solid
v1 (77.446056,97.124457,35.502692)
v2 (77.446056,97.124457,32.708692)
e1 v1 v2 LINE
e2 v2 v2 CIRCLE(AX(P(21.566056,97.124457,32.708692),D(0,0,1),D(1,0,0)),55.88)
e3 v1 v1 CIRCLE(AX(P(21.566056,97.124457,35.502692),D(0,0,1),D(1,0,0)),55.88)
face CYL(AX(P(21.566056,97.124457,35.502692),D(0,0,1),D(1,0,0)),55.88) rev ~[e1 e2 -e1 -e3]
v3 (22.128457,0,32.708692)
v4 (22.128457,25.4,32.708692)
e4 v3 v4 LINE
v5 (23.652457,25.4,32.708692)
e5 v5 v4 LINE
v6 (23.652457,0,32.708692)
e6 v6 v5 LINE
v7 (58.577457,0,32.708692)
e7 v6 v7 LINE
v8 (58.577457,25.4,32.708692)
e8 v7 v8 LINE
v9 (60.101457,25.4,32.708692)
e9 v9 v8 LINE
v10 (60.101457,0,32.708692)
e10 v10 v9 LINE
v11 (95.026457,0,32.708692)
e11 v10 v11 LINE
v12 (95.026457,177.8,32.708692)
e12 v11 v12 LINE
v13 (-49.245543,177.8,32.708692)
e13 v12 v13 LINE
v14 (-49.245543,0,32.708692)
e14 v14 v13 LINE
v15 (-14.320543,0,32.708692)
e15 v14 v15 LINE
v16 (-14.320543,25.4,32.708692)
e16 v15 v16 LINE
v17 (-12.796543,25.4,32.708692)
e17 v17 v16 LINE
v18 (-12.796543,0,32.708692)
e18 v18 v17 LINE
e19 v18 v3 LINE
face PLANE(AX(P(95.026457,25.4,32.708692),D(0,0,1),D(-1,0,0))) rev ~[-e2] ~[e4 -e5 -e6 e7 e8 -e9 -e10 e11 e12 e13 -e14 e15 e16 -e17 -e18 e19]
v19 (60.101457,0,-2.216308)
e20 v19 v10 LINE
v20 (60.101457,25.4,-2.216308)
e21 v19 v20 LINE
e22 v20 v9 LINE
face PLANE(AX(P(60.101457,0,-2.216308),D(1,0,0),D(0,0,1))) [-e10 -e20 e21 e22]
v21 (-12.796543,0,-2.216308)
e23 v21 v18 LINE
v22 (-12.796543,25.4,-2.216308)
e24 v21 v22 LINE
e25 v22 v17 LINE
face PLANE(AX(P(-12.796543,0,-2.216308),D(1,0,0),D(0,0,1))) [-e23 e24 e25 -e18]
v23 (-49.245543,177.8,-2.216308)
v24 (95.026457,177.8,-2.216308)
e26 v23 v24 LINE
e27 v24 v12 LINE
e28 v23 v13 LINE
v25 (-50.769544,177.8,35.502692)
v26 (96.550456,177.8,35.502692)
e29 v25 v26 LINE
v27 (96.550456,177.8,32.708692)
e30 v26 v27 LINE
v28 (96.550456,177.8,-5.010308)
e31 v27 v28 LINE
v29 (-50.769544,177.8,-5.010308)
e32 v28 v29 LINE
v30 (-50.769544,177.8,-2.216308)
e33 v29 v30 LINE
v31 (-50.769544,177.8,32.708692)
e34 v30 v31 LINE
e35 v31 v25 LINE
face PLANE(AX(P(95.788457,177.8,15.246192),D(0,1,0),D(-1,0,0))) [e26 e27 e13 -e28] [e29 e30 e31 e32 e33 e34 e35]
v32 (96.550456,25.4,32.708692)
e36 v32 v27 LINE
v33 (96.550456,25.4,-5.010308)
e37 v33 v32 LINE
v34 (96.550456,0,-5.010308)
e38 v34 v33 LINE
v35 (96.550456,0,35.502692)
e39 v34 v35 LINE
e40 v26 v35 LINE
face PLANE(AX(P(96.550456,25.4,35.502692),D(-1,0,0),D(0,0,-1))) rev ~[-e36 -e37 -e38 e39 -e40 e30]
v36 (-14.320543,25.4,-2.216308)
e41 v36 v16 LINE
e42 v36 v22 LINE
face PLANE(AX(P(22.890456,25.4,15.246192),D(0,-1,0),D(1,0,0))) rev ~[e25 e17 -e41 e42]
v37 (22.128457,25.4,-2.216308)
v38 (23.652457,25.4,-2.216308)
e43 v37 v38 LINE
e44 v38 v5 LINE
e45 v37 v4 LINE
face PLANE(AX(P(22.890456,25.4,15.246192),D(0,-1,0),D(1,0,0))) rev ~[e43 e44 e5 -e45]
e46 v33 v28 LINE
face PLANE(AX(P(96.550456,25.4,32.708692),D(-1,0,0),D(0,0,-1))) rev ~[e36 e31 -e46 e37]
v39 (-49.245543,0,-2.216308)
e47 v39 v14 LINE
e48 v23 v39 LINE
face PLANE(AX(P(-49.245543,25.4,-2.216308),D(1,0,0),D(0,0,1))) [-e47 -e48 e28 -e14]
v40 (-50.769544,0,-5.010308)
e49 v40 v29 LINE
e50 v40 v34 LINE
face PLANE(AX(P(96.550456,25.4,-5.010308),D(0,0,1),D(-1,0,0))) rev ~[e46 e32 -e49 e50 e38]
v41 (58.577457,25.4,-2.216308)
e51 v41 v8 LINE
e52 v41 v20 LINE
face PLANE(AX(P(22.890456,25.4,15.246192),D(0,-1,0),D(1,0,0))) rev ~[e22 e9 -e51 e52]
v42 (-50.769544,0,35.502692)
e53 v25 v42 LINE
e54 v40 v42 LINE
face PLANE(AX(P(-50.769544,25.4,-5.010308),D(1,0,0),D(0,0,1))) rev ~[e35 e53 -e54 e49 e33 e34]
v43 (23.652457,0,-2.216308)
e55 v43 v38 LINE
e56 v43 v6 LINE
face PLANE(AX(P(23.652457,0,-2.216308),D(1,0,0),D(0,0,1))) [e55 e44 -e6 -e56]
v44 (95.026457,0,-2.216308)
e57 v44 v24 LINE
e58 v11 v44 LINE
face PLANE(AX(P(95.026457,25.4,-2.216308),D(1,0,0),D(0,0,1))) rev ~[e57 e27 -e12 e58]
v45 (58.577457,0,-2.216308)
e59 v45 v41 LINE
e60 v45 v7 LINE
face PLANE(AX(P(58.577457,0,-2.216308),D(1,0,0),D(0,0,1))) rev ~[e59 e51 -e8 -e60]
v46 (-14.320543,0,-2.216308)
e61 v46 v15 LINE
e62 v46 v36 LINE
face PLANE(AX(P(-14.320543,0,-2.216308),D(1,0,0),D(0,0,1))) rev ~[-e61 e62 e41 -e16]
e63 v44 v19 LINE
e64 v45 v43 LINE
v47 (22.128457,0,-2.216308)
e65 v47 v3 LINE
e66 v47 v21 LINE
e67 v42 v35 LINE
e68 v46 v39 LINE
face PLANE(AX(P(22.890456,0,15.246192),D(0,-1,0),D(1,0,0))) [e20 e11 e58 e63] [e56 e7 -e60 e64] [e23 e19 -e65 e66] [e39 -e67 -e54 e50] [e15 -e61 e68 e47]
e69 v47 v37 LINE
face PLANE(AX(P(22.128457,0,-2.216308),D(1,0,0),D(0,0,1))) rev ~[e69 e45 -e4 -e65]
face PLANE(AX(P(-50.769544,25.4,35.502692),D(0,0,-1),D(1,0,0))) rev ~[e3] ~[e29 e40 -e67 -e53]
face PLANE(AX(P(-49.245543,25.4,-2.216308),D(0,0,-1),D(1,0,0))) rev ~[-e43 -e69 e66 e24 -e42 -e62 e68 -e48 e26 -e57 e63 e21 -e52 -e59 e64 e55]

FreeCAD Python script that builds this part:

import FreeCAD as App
import Part
import Sketcher
Q = App.Units.Quantity

doc = App.newDocument("Part")
body = doc.addObject("PartDesign::Body", "Body")

sketch1 = doc.addObject("Sketcher::SketchObject", "Sketch")
body.addObject(sketch1)
sketch1.AttachmentSupport = (doc.XZ_Plane, [""])
sketch1.MapMode = "FlatFace"
sketch1.addGeometry(Part.LineSegment(App.Vector(-50.769544, 35.502692, 0), App.Vector(-50.769544, -5.010308, 0)), False)
sketch1.addGeometry(Part.LineSegment(App.Vector(-50.769544, -5.010308, 0), App.Vector(96.550456, -5.010308, 0)), False)
sketch1.addGeometry(Part.LineSegment(App.Vector(96.550456, -5.010308, 0), App.Vector(96.550456, 35.502692, 0)), False)
sketch1.addGeometry(Part.LineSegment(App.Vector(96.550456, 35.502692, 0), App.Vector(-50.769544, 35.502692, 0)), False)
sketch1.addGeometry(Part.LineSegment(App.Vector(-49.245543, -2.216308, 0), App.Vector(-49.245543, 32.708692, 0)), False)
sketch1.addGeometry(Part.LineSegment(App.Vector(-49.245543, 32.708692, 0), App.Vector(-14.320543, 32.708692, 0)), False)
sketch1.addGeometry(Part.LineSegment(App.Vector(-14.320543, 32.708692, 0), App.Vector(-14.320543, -2.216308, 0)), False)
sketch1.addGeometry(Part.LineSegment(App.Vector(-14.320543, -2.216308, 0), App.Vector(-49.245543, -2.216308, 0)), False)
sketch1.addGeometry(Part.LineSegment(App.Vector(-12.796543, 32.708692, 0), App.Vector(22.128457, 32.708692, 0)), False)
sketch1.addGeometry(Part.LineSegment(App.Vector(22.128457, 32.708692, 0), App.Vector(22.128457, -2.216308, 0)), False)
sketch1.addGeometry(Part.LineSegment(App.Vector(22.128457, -2.216308, 0), App.Vector(-12.796543, -2.216308, 0)), False)
sketch1.addGeometry(Part.LineSegment(App.Vector(-12.796543, -2.216308, 0), App.Vector(-12.796543, 32.708692, 0)), False)
sketch1.addGeometry(Part.LineSegment(App.Vector(23.652457, 32.708692, 0), App.Vector(58.577457, 32.708692, 0)), False)
sketch1.addGeometry(Part.LineSegment(App.Vector(58.577457, 32.708692, 0), App.Vector(58.577457, -2.216308, 0)), False)
sketch1.addGeometry(Part.LineSegment(App.Vector(58.577457, -2.216308, 0), App.Vector(23.652457, -2.216308, 0)), False)
sketch1.addGeometry(Part.LineSegment(App.Vector(23.652457, -2.216308, 0), App.Vector(23.652457, 32.708692, 0)), False)
sketch1.addGeometry(Part.LineSegment(App.Vector(60.101457, 32.708692, 0), App.Vector(95.026457, 32.708692, 0)), False)
sketch1.addGeometry(Part.LineSegment(App.Vector(95.026457, 32.708692, 0), App.Vector(95.026457, -2.216308, 0)), False)
sketch1.addGeometry(Part.LineSegment(App.Vector(95.026457, -2.216308, 0), App.Vector(60.101457, -2.216308, 0)), False)
sketch1.addGeometry(Part.LineSegment(App.Vector(60.101457, -2.216308, 0), App.Vector(60.101457, 32.708692, 0)), False)
sketch1.addConstraint(Sketcher.Constraint("Coincident", 0, 2, 1, 1))
sketch1.addConstraint(Sketcher.Constraint("Coincident", 1, 2, 2, 1))
sketch1.addConstraint(Sketcher.Constraint("Coincident", 2, 2, 3, 1))
sketch1.addConstraint(Sketcher.Constraint("Coincident", 3, 2, 0, 1))
sketch1.addConstraint(Sketcher.Constraint("Coincident", 4, 2, 5, 1))
sketch1.addConstraint(Sketcher.Constraint("Coincident", 5, 2, 6, 1))
sketch1.addConstraint(Sketcher.Constraint("Coincident", 6, 2, 7, 1))
sketch1.addConstraint(Sketcher.Constraint("Coincident", 7, 2, 4, 1))
sketch1.addConstraint(Sketcher.Constraint("Coincident", 8, 2, 9, 1))
sketch1.addConstraint(Sketcher.Constraint("Coincident", 9, 2, 10, 1))
sketch1.addConstraint(Sketcher.Constraint("Coincident", 10, 2, 11, 1))
sketch1.addConstraint(Sketcher.Constraint("Coincident", 11, 2, 8, 1))
sketch1.addConstraint(Sketcher.Constraint("Coincident", 12, 2, 13, 1))
sketch1.addConstraint(Sketcher.Constraint("Coincident", 13, 2, 14, 1))
sketch1.addConstraint(Sketcher.Constraint("Coincident", 14, 2, 15, 1))
sketch1.addConstraint(Sketcher.Constraint("Coincident", 15, 2, 12, 1))
sketch1.addConstraint(Sketcher.Constraint("Coincident", 16, 2, 17, 1))
sketch1.addConstraint(Sketcher.Constraint("Coincident", 17, 2, 18, 1))
sketch1.addConstraint(Sketcher.Constraint("Coincident", 18, 2, 19, 1))
sketch1.addConstraint(Sketcher.Constraint("Coincident", 19, 2, 16, 1))
sketch1.addConstraint(Sketcher.Constraint("Vertical", 0))
sketch1.addConstraint(Sketcher.Constraint("Horizontal", 1))
sketch1.addConstraint(Sketcher.Constraint("Vertical", 2))
sketch1.addConstraint(Sketcher.Constraint("Horizontal", 3))
sketch1.addConstraint(Sketcher.Constraint("Vertical", 4))
sketch1.addConstraint(Sketcher.Constraint("Horizontal", 5))
sketch1.addConstraint(Sketcher.Constraint("Vertical", 6))
sketch1.addConstraint(Sketcher.Constraint("Horizontal", 7))
sketch1.addConstraint(Sketcher.Constraint("Horizontal", 8))
sketch1.addConstraint(Sketcher.Constraint("Vertical", 9))
sketch1.addConstraint(Sketcher.Constraint("Horizontal", 10))
sketch1.addConstraint(Sketcher.Constraint("Vertical", 11))
sketch1.addConstraint(Sketcher.Constraint("Horizontal", 12))
sketch1.addConstraint(Sketcher.Constraint("Vertical", 13))
sketch1.addConstraint(Sketcher.Constraint("Horizontal", 14))
sketch1.addConstraint(Sketcher.Constraint("Vertical", 15))
sketch1.addConstraint(Sketcher.Constraint("Horizontal", 16))
sketch1.addConstraint(Sketcher.Constraint("Vertical", 17))
sketch1.addConstraint(Sketcher.Constraint("Horizontal", 18))
sketch1.addConstraint(Sketcher.Constraint("Vertical", 19))
sketch1.addConstraint(Sketcher.Constraint("Horizontal", 5, 2, 8, 2))
sketch1.addConstraint(Sketcher.Constraint("Horizontal", 7, 2, 9, 2))
sketch1.addConstraint(Sketcher.Constraint("Horizontal", 11, 2, 12, 2))
sketch1.addConstraint(Sketcher.Constraint("Horizontal", 10, 2, 13, 2))
sketch1.addConstraint(Sketcher.Constraint("Horizontal", 15, 2, 16, 2))
sketch1.addConstraint(Sketcher.Constraint("Horizontal", 14, 2, 17, 2))
sketch1.addConstraint(Sketcher.Constraint("Equal", 7, 8))
sketch1.addConstraint(Sketcher.Constraint("Equal", 10, 12))
sketch1.addConstraint(Sketcher.Constraint("Equal", 14, 16))
sketch1.addConstraint(Sketcher.Constraint("Equal", 18, 4))
sketch1.addConstraint(Sketcher.Constraint("DistanceX", 1, 1, 1, 2, Q("5.8 in")))
sketch1.addConstraint(Sketcher.Constraint("DistanceX", 5, 1, 5, 2, Q("1.375 in")))
sketch1.addConstraint(Sketcher.Constraint("DistanceY", 0, 2, 0, 1, Q("1.595 in")))
sketch1.addConstraint(Sketcher.Constraint("DistanceX", 3, 2, 4, 2, Q("0.06 in")))
sketch1.addConstraint(Sketcher.Constraint("DistanceY", 4, 2, 3, 2, Q("0.11 in")))
sketch1.addConstraint(Sketcher.Constraint("DistanceX", 4, 2, 8, 2, Q("2.81 in")))
sketch1.addConstraint(Sketcher.Constraint("DistanceX", 11, 2, 12, 2, Q("2.81 in")))
sketch1.addConstraint(Sketcher.Constraint("DistanceX", 16, 2, 2, 2, Q("0.06 in")))
sketch1.addConstraint(Sketcher.Constraint("DistanceY", 0, 2, -1, 1, Q("5.010308 mm")))
sketch1.addConstraint(Sketcher.Constraint("DistanceX", 0, 2, -1, 1, Q("50.769544 mm")))
pad1 = doc.addObject("PartDesign::Pad", "Pad")
body.addObject(pad1)
pad1.Profile = sketch1
pad1.Length = Q("1 in")
pad1.Reversed = True

sketch2 = doc.addObject("Sketcher::SketchObject", "Sketch001")
body.addObject(sketch2)
sketch2.AttachmentSupport = (doc.XZ_Plane, [""])
sketch2.MapMode = "FlatFace"
sketch2.AttachmentOffset = App.Placement(App.Vector(0, 0, -1 * 25.4), App.Rotation())
sketch2.addGeometry(Part.LineSegment(App.Vector(96.550456, 32.708692, 0), App.Vector(96.550456, -5.010308, 0)), False)
sketch2.addGeometry(Part.LineSegment(App.Vector(96.550456, -5.010308, 0), App.Vector(-50.769544, -5.010308, 0)), False)
sketch2.addGeometry(Part.LineSegment(App.Vector(-50.769544, -5.010308, 0), App.Vector(-50.769544, -2.216308, 0)), False)
sketch2.addGeometry(Part.LineSegment(App.Vector(-50.769544, -2.216308, 0), App.Vector(-50.769544, 32.708692, 0)), False)
sketch2.addGeometry(Part.LineSegment(App.Vector(-50.769544, 32.708692, 0), App.Vector(-50.769544, 35.502692, 0)), False)
sketch2.addGeometry(Part.LineSegment(App.Vector(-50.769544, 35.502692, 0), App.Vector(96.550456, 35.502692, 0)), False)
sketch2.addGeometry(Part.LineSegment(App.Vector(96.550456, 35.502692, 0), App.Vector(96.550456, 32.708692, 0)), False)
sketch2.addGeometry(Part.LineSegment(App.Vector(-49.245543, -2.216308, 0), App.Vector(95.026457, -2.216308, 0)), False)
sketch2.addGeometry(Part.LineSegment(App.Vector(95.026457, -2.216308, 0), App.Vector(95.026457, 32.708692, 0)), False)
sketch2.addGeometry(Part.LineSegment(App.Vector(95.026457, 32.708692, 0), App.Vector(-49.245543, 32.708692, 0)), False)
sketch2.addGeometry(Part.LineSegment(App.Vector(-49.245543, 32.708692, 0), App.Vector(-49.245543, -2.216308, 0)), False)
sketch2.addConstraint(Sketcher.Constraint("Coincident", 0, 2, 1, 1))
sketch2.addConstraint(Sketcher.Constraint("Coincident", 1, 2, 2, 1))
sketch2.addConstraint(Sketcher.Constraint("Coincident", 2, 2, 3, 1))
sketch2.addConstraint(Sketcher.Constraint("Coincident", 3, 2, 4, 1))
sketch2.addConstraint(Sketcher.Constraint("Coincident", 4, 2, 5, 1))
sketch2.addConstraint(Sketcher.Constraint("Coincident", 5, 2, 6, 1))
sketch2.addConstraint(Sketcher.Constraint("Coincident", 6, 2, 0, 1))
sketch2.addConstraint(Sketcher.Constraint("Coincident", 7, 2, 8, 1))
sketch2.addConstraint(Sketcher.Constraint("Coincident", 8, 2, 9, 1))
sketch2.addConstraint(Sketcher.Constraint("Coincident", 9, 2, 10, 1))
sketch2.addConstraint(Sketcher.Constraint("Coincident", 10, 2, 7, 1))
sketch2.addConstraint(Sketcher.Constraint("Vertical", 0))
sketch2.addConstraint(Sketcher.Constraint("Horizontal", 1))
sketch2.addConstraint(Sketcher.Constraint("Vertical", 2))
sketch2.addConstraint(Sketcher.Constraint("Vertical", 3))
sketch2.addConstraint(Sketcher.Constraint("Vertical", 4))
sketch2.addConstraint(Sketcher.Constraint("Horizontal", 5))
sketch2.addConstraint(Sketcher.Constraint("Vertical", 6))
sketch2.addConstraint(Sketcher.Constraint("Horizontal", 7))
sketch2.addConstraint(Sketcher.Constraint("Vertical", 8))
sketch2.addConstraint(Sketcher.Constraint("Horizontal", 9))
sketch2.addConstraint(Sketcher.Constraint("Vertical", 10))
sketch2.addConstraint(Sketcher.Constraint("Horizontal", 3, 2, 6, 2))
sketch2.addConstraint(Sketcher.Constraint("Horizontal", 2, 2, 7, 2))
sketch2.addConstraint(Sketcher.Constraint("Horizontal", 6, 2, 8, 2))
sketch2.addConstraint(Sketcher.Constraint("Equal", 2, 4))
sketch2.addConstraint(Sketcher.Constraint("DistanceX", 1, 2, 1, 1, Q("5.8 in")))
sketch2.addConstraint(Sketcher.Constraint("DistanceX", 7, 1, 7, 2, Q("5.68 in")))
sketch2.addConstraint(Sketcher.Constraint("DistanceY", 2, 1, 2, 2, Q("0.11 in")))
sketch2.addConstraint(Sketcher.Constraint("DistanceY", 0, 2, 0, 1, Q("1.485 in")))
sketch2.addConstraint(Sketcher.Constraint("DistanceX", 7, 2, 0, 2, Q("0.06 in")))
sketch2.addConstraint(Sketcher.Constraint("DistanceY", 0, 2, -1, 1, Q("5.010308 mm")))
sketch2.addConstraint(Sketcher.Constraint("DistanceX", -1, 1, 0, 2, Q("96.550456 mm")))
pad2 = doc.addObject("PartDesign::Pad", "Pad001")
body.addObject(pad2)
pad2.Profile = sketch2
pad2.Length = Q("6 in")
pad2.Reversed = True

sketch3 = doc.addObject("Sketcher::SketchObject", "Sketch002")
body.addObject(sketch3)
sketch3.AttachmentSupport = (doc.XY_Plane, [""])
sketch3.MapMode = "FlatFace"
sketch3.AttachmentOffset = App.Placement(App.Vector(0, 0, 35.502692), App.Rotation())
sketch3.addGeometry(Part.Circle(App.Vector(21.566056, 97.124457, 0), App.Vector(0, 0, 1), 55.88), False)
sketch3.addConstraint(Sketcher.Constraint("Diameter", 0, Q("4.4 in")))
sketch3.addConstraint(Sketcher.Constraint("DistanceX", -1, 1, 0, 3, Q("21.566056 mm")))
sketch3.addConstraint(Sketcher.Constraint("DistanceY", -1, 1, 0, 3, Q("97.124457 mm")))
pocket1 = doc.addObject("PartDesign::Pocket", "Pocket")
body.addObject(pocket1)
pocket1.Profile = sketch3
pocket1.Length = Q("1 in")

doc.recompute()
